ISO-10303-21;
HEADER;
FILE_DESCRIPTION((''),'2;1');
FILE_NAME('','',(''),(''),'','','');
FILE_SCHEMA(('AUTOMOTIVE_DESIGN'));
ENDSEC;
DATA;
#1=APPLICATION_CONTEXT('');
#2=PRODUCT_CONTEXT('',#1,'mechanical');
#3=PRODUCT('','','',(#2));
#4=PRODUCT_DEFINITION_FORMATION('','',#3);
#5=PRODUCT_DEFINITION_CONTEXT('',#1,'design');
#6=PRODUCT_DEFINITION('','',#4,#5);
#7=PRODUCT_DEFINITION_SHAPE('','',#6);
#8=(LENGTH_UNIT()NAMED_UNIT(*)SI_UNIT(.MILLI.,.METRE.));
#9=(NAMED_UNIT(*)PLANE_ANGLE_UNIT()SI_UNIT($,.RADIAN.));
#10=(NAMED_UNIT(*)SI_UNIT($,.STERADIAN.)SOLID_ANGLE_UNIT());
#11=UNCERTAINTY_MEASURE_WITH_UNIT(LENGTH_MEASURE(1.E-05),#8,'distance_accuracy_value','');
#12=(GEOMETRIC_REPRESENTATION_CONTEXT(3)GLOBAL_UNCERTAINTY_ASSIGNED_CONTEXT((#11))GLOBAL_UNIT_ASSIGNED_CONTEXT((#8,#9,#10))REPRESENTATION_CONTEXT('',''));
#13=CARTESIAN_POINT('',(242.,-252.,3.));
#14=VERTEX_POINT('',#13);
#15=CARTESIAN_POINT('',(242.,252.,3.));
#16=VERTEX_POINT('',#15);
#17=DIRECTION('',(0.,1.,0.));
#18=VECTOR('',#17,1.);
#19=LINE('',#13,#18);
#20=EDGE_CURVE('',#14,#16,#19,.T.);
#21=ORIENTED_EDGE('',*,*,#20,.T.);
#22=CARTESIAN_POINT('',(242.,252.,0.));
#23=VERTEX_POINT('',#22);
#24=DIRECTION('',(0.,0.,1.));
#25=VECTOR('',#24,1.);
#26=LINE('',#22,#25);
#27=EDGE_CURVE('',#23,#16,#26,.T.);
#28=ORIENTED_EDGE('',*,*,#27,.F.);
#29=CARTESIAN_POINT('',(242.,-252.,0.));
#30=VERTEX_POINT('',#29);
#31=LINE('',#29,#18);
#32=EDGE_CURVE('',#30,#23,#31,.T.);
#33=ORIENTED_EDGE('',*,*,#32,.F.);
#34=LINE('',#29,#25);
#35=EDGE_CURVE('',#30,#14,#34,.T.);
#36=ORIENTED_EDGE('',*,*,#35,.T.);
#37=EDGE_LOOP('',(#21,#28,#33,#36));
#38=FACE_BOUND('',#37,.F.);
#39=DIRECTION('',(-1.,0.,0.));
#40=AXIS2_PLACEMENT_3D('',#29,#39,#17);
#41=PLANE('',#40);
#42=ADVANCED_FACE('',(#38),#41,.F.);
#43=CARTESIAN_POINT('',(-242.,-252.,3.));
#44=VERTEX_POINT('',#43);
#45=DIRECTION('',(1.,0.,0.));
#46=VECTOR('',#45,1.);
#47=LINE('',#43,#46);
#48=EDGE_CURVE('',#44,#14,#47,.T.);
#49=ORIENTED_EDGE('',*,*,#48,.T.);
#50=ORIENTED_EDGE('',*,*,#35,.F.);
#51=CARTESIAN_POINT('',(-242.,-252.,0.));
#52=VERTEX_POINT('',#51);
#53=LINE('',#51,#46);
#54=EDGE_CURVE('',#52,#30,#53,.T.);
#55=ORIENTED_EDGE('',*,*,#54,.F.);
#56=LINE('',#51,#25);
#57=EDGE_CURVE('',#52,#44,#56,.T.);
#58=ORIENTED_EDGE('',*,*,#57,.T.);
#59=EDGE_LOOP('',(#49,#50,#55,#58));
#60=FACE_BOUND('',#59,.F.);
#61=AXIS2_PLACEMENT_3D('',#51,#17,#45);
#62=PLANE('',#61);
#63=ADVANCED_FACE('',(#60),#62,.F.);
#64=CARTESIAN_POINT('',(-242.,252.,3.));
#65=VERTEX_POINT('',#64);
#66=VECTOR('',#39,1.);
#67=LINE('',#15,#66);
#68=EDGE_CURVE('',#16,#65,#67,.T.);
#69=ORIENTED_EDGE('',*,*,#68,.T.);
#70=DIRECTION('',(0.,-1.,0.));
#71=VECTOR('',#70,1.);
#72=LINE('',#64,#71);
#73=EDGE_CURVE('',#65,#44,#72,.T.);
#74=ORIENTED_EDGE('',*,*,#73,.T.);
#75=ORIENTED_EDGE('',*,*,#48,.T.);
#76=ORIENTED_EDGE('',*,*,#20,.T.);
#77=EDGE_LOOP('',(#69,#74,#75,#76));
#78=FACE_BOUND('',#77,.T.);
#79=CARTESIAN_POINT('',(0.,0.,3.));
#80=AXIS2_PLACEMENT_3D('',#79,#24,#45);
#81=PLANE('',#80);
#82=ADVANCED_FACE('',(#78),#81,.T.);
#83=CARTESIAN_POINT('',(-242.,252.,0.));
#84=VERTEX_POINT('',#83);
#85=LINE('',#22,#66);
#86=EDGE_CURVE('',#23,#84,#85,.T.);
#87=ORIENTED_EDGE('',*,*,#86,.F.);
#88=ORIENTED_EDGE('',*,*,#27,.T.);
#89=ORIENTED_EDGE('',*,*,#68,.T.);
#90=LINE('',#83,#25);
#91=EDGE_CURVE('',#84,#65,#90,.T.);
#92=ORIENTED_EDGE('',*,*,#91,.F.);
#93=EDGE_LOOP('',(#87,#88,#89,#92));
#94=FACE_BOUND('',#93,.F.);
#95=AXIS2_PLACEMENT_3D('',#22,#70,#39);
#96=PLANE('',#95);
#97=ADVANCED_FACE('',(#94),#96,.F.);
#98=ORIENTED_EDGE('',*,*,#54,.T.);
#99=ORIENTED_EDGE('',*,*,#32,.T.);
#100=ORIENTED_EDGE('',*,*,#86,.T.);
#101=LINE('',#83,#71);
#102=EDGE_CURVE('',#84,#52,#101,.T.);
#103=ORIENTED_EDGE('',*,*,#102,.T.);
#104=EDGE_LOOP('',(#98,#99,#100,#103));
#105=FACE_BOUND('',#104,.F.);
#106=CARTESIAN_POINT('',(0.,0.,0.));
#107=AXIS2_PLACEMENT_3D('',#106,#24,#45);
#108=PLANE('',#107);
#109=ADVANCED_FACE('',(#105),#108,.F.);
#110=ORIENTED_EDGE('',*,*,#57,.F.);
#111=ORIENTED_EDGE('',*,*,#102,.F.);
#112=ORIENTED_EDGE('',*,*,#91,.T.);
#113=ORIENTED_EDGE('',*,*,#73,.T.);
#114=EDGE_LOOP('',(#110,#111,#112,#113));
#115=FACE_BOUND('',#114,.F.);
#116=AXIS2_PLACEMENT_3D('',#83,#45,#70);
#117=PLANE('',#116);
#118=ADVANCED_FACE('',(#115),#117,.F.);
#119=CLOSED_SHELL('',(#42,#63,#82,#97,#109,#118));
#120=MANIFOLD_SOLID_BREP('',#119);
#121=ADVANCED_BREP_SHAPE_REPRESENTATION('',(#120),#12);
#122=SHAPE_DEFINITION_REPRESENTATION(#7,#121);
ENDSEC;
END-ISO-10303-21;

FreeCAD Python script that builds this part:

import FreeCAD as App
import Part
import Sketcher

V = App.Vector

doc = App.newDocument("Part")
body = doc.addObject("PartDesign::Body", "Body")

# Sketch on XY plane
sketch1 = body.newObject("Sketcher::SketchObject", "Sketch")
sketch1.AttachmentSupport = (doc.getObject("XY_Plane"), [""])
sketch1.MapMode = "FlatFace"
sketch1.addGeometry(Part.LineSegment(V(-242, 252, 0), V(-242, -252, 0)), False)
sketch1.addGeometry(Part.LineSegment(V(-242, -252, 0), V(242, -252, 0)), False)
sketch1.addGeometry(Part.LineSegment(V(242, -252, 0), V(242, 252, 0)), False)
sketch1.addGeometry(Part.LineSegment(V(242, 252, 0), V(-242, 252, 0)), False)
sketch1.addConstraint(Sketcher.Constraint("Coincident", 0, 2, 1, 1))
sketch1.addConstraint(Sketcher.Constraint("Coincident", 1, 2, 2, 1))
sketch1.addConstraint(Sketcher.Constraint("Coincident", 2, 2, 3, 1))
sketch1.addConstraint(Sketcher.Constraint("Coincident", 3, 2, 0, 1))
sketch1.addConstraint(Sketcher.Constraint("Vertical", 0))
sketch1.addConstraint(Sketcher.Constraint("Horizontal", 1))
sketch1.addConstraint(Sketcher.Constraint("Vertical", 2))
sketch1.addConstraint(Sketcher.Constraint("Horizontal", 3))
sketch1.addConstraint(Sketcher.Constraint("Symmetric", 0, 2, 2, 2, -1, 1))
sketch1.addConstraint(Sketcher.Constraint("DistanceX", 1, 1, 1, 2, 484.0))
sketch1.addConstraint(Sketcher.Constraint("DistanceY", 0, 2, 0, 1, 504.0))
pad1 = body.newObject("PartDesign::Pad", "Pad")
pad1.Profile = sketch1
pad1.Length = 3

doc.recompute()
